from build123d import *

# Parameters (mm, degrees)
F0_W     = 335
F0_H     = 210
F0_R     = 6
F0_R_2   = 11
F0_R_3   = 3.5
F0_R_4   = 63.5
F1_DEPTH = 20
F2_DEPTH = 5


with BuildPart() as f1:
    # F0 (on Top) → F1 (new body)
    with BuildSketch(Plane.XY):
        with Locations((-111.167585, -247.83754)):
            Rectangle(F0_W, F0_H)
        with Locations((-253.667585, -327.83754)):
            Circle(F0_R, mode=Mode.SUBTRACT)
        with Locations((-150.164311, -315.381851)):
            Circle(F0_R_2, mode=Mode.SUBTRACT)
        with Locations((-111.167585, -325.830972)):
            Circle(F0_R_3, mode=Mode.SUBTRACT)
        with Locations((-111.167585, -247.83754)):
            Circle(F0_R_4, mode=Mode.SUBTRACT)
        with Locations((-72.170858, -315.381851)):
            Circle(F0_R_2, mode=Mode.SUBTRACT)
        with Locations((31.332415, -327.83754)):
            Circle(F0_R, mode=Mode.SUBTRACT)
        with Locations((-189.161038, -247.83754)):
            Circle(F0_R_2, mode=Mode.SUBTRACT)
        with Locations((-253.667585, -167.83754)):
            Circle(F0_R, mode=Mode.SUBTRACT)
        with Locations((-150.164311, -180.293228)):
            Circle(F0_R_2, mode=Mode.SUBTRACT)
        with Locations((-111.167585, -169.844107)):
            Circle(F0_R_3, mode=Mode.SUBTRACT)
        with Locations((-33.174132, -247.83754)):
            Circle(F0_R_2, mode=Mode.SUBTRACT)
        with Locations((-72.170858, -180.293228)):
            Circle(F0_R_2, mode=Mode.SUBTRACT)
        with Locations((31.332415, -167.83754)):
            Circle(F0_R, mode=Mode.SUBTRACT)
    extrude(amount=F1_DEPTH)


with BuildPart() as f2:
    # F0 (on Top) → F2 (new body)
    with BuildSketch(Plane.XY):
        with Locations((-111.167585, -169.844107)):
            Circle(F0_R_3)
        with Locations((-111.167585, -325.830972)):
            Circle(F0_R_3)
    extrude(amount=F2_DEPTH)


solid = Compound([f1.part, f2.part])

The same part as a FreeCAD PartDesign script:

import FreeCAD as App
import Part
import Sketcher
from FreeCAD import Vector


def add_polygon(sketch, points):
    """Adds a closed chain of lines whose ends are joined by coincident constraints."""
    first, n = sketch.GeometryCount, len(points)
    for a, b in zip(points, points[1:] + points[:1]):
        sketch.addGeometry(Part.LineSegment(App.Vector(*a, 0), App.Vector(*b, 0)), False)
    for i in range(n):
        sketch.addConstraint(Sketcher.Constraint("Coincident", first + i, 2, first + (i + 1) % n, 1))

doc = App.newDocument("Part")
body = doc.addObject("PartDesign::Body", "Body")

# Sketch on XY plane
sketch1 = body.newObject("Sketcher::SketchObject", "Sketch")
sketch1.AttachmentSupport = (doc.getObject("XY_Plane"), [""])
sketch1.MapMode = "FlatFace"
add_polygon(sketch1, [(-278.7, -142.8), (-278.7, -352.8), (56.3, -352.8), (56.3, -142.8)])  # lines 0-3
sketch1.addGeometry(Part.Circle(Vector(-253.7, -327.8, 0), Vector(0, 0, 1), 6), False)  # 4
sketch1.addGeometry(Part.Circle(Vector(-150.2, -315.4, 0), Vector(0, 0, 1), 11), False)  # 5
sketch1.addGeometry(Part.Circle(Vector(-111.2, -325.8, 0), Vector(0, 0, 1), 3.5), False)  # 6
sketch1.addGeometry(Part.Circle(Vector(-72.2, -315.4, 0), Vector(0, 0, 1), 11), False)  # 7
sketch1.addGeometry(Part.Circle(Vector(31.3, -327.8, 0), Vector(0, 0, 1), 6), False)  # 8
sketch1.addGeometry(Part.Circle(Vector(-189.2, -247.8, 0), Vector(0, 0, 1), 11), False)  # 9
sketch1.addGeometry(Part.Circle(Vector(-253.7, -167.8, 0), Vector(0, 0, 1), 6), False)  # 10
sketch1.addGeometry(Part.Circle(Vector(-150.2, -180.3, 0), Vector(0, 0, 1), 11), False)  # 11
sketch1.addGeometry(Part.Circle(Vector(-111.2, -247.8, 0), Vector(0, 0, 1), 63.5), False)  # 12
sketch1.addGeometry(Part.Circle(Vector(-33.2, -247.8, 0), Vector(0, 0, 1), 11), False)  # 13
sketch1.addGeometry(Part.Circle(Vector(-111.2, -169.8, 0), Vector(0, 0, 1), 3.5), False)  # 14
sketch1.addGeometry(Part.Circle(Vector(-72.2, -180.3, 0), Vector(0, 0, 1), 11), False)  # 15
sketch1.addGeometry(Part.Circle(Vector(31.3, -167.8, 0), Vector(0, 0, 1), 6), False)  # 16
sketch1.addConstraint([
    Sketcher.Constraint("Vertical", 0),
    Sketcher.Constraint("Horizontal", 1),
    Sketcher.Constraint("Vertical", 2),
    Sketcher.Constraint("Horizontal", 3),
    Sketcher.Constraint("Equal", 5, 7),
    Sketcher.Constraint("Equal", 4, 8),
    Sketcher.Constraint("Equal", 7, 9),
    Sketcher.Constraint("Equal", 8, 10),
    Sketcher.Constraint("Equal", 9, 11),
    Sketcher.Constraint("Equal", 11, 13),
    Sketcher.Constraint("Equal", 6, 14),
    Sketcher.Constraint("Equal", 13, 15),
    Sketcher.Constraint("Equal", 10, 16),
    Sketcher.Constraint("Horizontal", 5, 3, 7, 3),
    Sketcher.Constraint("Horizontal", 4, 3, 8, 3),
    Sketcher.Constraint("Horizontal", 9, 3, 12, 3),
    Sketcher.Constraint("Horizontal", 12, 3, 13, 3),
    Sketcher.Constraint("Horizontal", 11, 3, 15, 3),
    Sketcher.Constraint("Horizontal", 10, 3, 16, 3),
    Sketcher.Constraint("Vertical", 4, 3, 10, 3),
    Sketcher.Constraint("Vertical", 5, 3, 11, 3),
    Sketcher.Constraint("Vertical", 6, 3, 12, 3),
    Sketcher.Constraint("Vertical", 12, 3, 14, 3),
    Sketcher.Constraint("Vertical", 7, 3, 15, 3),
    Sketcher.Constraint("Vertical", 8, 3, 16, 3),
    Sketcher.Constraint("Diameter", 4, 12.0),
    Sketcher.Constraint("Diameter", 5, 22.0),
    Sketcher.Constraint("Diameter", 6, 7.0),
    Sketcher.Constraint("Diameter", 12, 127.0),
    Sketcher.Constraint("DistanceX", 1, 1, 1, 2, 335.0),
    Sketcher.Constraint("DistanceY", 0, 2, 0, 1, 210.0),
    Sketcher.Constraint("DistanceX", 4, 3, 8, 3, 285.0),
    Sketcher.Constraint("DistanceY", 4, 3, 9, 3, 80.0),
    Sketcher.Constraint("DistanceY", 9, 3, 10, 3, 80.0),
    Sketcher.Constraint("DistanceX", 0, 2, 4, 3, 25.0),
    Sketcher.Constraint("DistanceY", 0, 2, 4, 3, 25.0),
    Sketcher.Constraint("DistanceX", 4, 3, 6, 3, 142.5),
    Sketcher.Constraint("DistanceY", 4, 3, -1, 1, 327.83754),
    Sketcher.Constraint("DistanceX", 5, 3, -1, 1, 150.164311),
    Sketcher.Constraint("DistanceY", 5, 3, -1, 1, 315.381851),
    Sketcher.Constraint("DistanceY", 6, 3, -1, 1, 325.830972),
    Sketcher.Constraint("DistanceY", 11, 3, -1, 1, 180.293228),
    Sketcher.Constraint("DistanceX", 9, 3, 7, 3, 116.99018),
    Sketcher.Constraint("DistanceX", 5, 3, 13, 3, 116.990179),
    Sketcher.Constraint("DistanceY", 11, 3, 14, 3, 10.449121),
    Sketcher.Constraint("DistanceX", 4, 3, -1, 1, 253.667585),
    Sketcher.Constraint("DistanceX", 7, 3, -1, 1, 72.170858),
])
pad1 = body.newObject("PartDesign::Pad", "Pad")
pad1.Profile = sketch1
pad1.Length = 20
body2 = doc.addObject("PartDesign::Body", "Body001")
body2.AllowCompound = True

# Sketch on XY plane
sketch2 = body2.newObject("Sketcher::SketchObject", "Sketch001")
sketch2.AttachmentSupport = (doc.getObject("XY_Plane001"), [""])
sketch2.MapMode = "FlatFace"
sketch2.addGeometry([
    Part.Circle(Vector(-111.2, -169.8, 0), Vector(0, 0, 1), 3.5),
    Part.Circle(Vector(-111.2, -325.8, 0), Vector(0, 0, 1), 3.5),
], False)
sketch2.addConstraint([
    Sketcher.Constraint("Equal", 0, 1),
    Sketcher.Constraint("Vertical", 0, 3, 1, 3),
    Sketcher.Constraint("Diameter", 0, 7.0),
    Sketcher.Constraint("DistanceY", 1, 3, -1, 1, 325.830972),
    Sketcher.Constraint("DistanceX", 0, 3, -1, 1, 111.167585),
    Sketcher.Constraint("DistanceY", 0, 3, -1, 1, 169.844107),
])
pad2 = body2.newObject("PartDesign::Pad", "Pad001")
pad2.Profile = sketch2
pad2.Length = 5

doc.recompute()
